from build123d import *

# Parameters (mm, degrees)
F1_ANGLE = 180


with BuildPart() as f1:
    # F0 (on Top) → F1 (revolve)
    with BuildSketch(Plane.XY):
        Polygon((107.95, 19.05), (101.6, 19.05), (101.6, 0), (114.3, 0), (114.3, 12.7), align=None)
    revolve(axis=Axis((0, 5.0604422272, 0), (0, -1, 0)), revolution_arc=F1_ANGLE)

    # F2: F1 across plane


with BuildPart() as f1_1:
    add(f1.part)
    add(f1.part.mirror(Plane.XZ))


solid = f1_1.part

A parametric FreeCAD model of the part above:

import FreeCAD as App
import Part
import Sketcher
Q = App.Units.Quantity


def add_polygon(sketch, points):
    """Adds a closed chain of lines whose ends are joined by coincident constraints."""
    first, n = sketch.GeometryCount, len(points)
    for a, b in zip(points, points[1:] + points[:1]):
        sketch.addGeometry(Part.LineSegment(App.Vector(*a, 0), App.Vector(*b, 0)), False)
    for i in range(n):
        sketch.addConstraint(Sketcher.Constraint("Coincident", first + i, 2, first + (i + 1) % n, 1))

doc = App.newDocument("Part")
params = doc.addObject("Spreadsheet::Sheet", "Params")
for row, (alias, value) in enumerate([
    ("sketch1_width", "0.5 in"),
    ("sketch1_width2", "0.25 in"),
    ("revolution_angle", "180 deg"),
], start=1):
    params.set(f"A{row}", alias)
    params.set(f"B{row}", "=" + value)
    params.setAlias(f"B{row}", alias)

body = doc.addObject("PartDesign::Body", "Body")

# Sketch on XY plane
sketch1 = doc.addObject("Sketcher::SketchObject", "Sketch")
body.addObject(sketch1)
sketch1.AttachmentSupport = (doc.XY_Plane, [""])
sketch1.MapMode = "FlatFace"
add_polygon(sketch1, [(108, 19), (102, 19), (102, 0), (114, 0), (114, 13)])  # lines 0-4
sketch1.addConstraint(Sketcher.Constraint("Horizontal", 0))
sketch1.addConstraint(Sketcher.Constraint("Vertical", 1))
sketch1.addConstraint(Sketcher.Constraint("Horizontal", 2))
sketch1.addConstraint(Sketcher.Constraint("Vertical", 3))
sketch1.addConstraint(Sketcher.Constraint("PointOnObject", 1, 2, -1))
sketch1.addConstraint(Sketcher.Constraint("Equal", 2, 3))
sketch1.addConstraint(Sketcher.Constraint("DistanceX", 2, 1, 2, 2, Q("0.5 in")))
sketch1.addConstraint(Sketcher.Constraint("DistanceX", -1, 1, 0, 2, Q("4 in")))
sketch1.addConstraint(Sketcher.Constraint("Angle", 4, Q("135 deg")))
sketch1.addConstraint(Sketcher.Constraint("DistanceX", 0, 2, 0, 1, Q("0.25 in")))
sketch1.setExpression("Constraints[11]", "Params.sketch1_width")
sketch1.setExpression("Constraints[14]", "Params.sketch1_width2")
revolution = doc.addObject("PartDesign::Revolution", "Revolution")
body.addObject(revolution)
revolution.Profile = sketch1
revolution.ReferenceAxis = (sketch1, ["V_Axis"])
revolution.setExpression("Angle", "Params.revolution_angle")
revolution.Reversed = True
body2 = doc.addObject("PartDesign::Body", "Body001")
doc.recompute()

body2.BaseFeature = body
doc.recompute()

mirroring = doc.addObject("Part::Mirroring", "Mirroring")
mirroring.Source = body
mirroring.Base = App.Vector(0, 0, 0)
mirroring.Normal = App.Vector(0, -1, 0)
body3 = doc.addObject("PartDesign::Body", "Body002")
body3.BaseFeature = mirroring
boolean = doc.addObject("PartDesign::Boolean", "Boolean")
body2.addObject(boolean)
boolean.Type = "Fuse"
boolean.addObjects([body3])
doc.recompute()
mirroring.Visibility = False

doc.recompute()
